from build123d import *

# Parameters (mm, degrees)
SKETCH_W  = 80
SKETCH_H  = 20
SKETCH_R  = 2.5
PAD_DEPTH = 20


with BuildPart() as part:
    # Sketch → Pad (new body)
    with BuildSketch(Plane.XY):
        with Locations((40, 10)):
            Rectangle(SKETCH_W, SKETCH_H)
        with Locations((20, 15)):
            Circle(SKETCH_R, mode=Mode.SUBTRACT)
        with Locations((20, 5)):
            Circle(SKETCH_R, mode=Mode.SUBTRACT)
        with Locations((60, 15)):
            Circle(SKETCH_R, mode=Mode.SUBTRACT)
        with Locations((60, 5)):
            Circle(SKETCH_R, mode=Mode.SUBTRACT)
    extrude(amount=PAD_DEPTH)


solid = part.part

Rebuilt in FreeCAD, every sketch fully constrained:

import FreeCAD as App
import Part
import Sketcher

V = App.Vector


def add_polygon(sketch, points):
    """Adds a closed chain of lines whose ends are joined by coincident constraints."""
    first, n = sketch.GeometryCount, len(points)
    for a, b in zip(points, points[1:] + points[:1]):
        sketch.addGeometry(Part.LineSegment(App.Vector(*a, 0), App.Vector(*b, 0)), False)
    for i in range(n):
        sketch.addConstraint(Sketcher.Constraint("Coincident", first + i, 2, first + (i + 1) % n, 1))

doc = App.newDocument("Part")
params = doc.addObject("Spreadsheet::Sheet", "Params")
for row, (alias, value) in enumerate([
    ("sketch1_diameter", "5 mm"),
    ("sketch1_width", "80 mm"),
    ("sketch1_height", "20 mm"),
    ("pad1_length", "20 mm"),
], start=1):
    params.set(f"A{row}", alias)
    params.set(f"B{row}", "=" + value)
    params.setAlias(f"B{row}", alias)

body = doc.addObject("PartDesign::Body", "Body")

# Sketch on XY plane
sketch1 = doc.addObject("Sketcher::SketchObject", "Sketch")
body.addObject(sketch1)
sketch1.AttachmentSupport = (doc.XY_Plane, [""])
sketch1.MapMode = "FlatFace"
add_polygon(sketch1, [(0, 20), (0, 0), (80, 0), (80, 20)])  # lines 0-3
sketch1.addGeometry(Part.Circle(V(20, 5, 0), V(0, 0, 1), 2.5), False)  # 4
sketch1.addGeometry(Part.Circle(V(60, 5, 0), V(0, 0, 1), 2.5), False)  # 5
sketch1.addGeometry(Part.Circle(V(20, 15, 0), V(0, 0, 1), 2.5), False)  # 6
sketch1.addGeometry(Part.Circle(V(60, 15, 0), V(0, 0, 1), 2.5), False)  # 7
sketch1.addConstraint(Sketcher.Constraint("Vertical", 0))
sketch1.addConstraint(Sketcher.Constraint("Horizontal", 1))
sketch1.addConstraint(Sketcher.Constraint("Vertical", 2))
sketch1.addConstraint(Sketcher.Constraint("Horizontal", 3))
sketch1.addConstraint(Sketcher.Constraint("Coincident", 0, 2, -1, 1))
sketch1.addConstraint(Sketcher.Constraint("Equal", 4, 5))
sketch1.addConstraint(Sketcher.Constraint("Equal", 5, 6))
sketch1.addConstraint(Sketcher.Constraint("Equal", 6, 7))
sketch1.addConstraint(Sketcher.Constraint("Horizontal", 4, 3, 5, 3))
sketch1.addConstraint(Sketcher.Constraint("Horizontal", 6, 3, 7, 3))
sketch1.addConstraint(Sketcher.Constraint("Vertical", 4, 3, 6, 3))
sketch1.addConstraint(Sketcher.Constraint("Vertical", 5, 3, 7, 3))
sketch1.addConstraint(Sketcher.Constraint("Diameter", 4, 5.0))
sketch1.addConstraint(Sketcher.Constraint("DistanceX", 1, 1, 1, 2, 80.0))
sketch1.addConstraint(Sketcher.Constraint("DistanceY", 0, 2, 0, 1, 20.0))
sketch1.addConstraint(Sketcher.Constraint("DistanceX", -1, 1, 4, 3, 20.0))
sketch1.addConstraint(Sketcher.Constraint("DistanceY", -1, 1, 4, 3, 5.0))
sketch1.addConstraint(Sketcher.Constraint("DistanceX", -1, 1, 5, 3, 60.0))
sketch1.addConstraint(Sketcher.Constraint("DistanceY", -1, 1, 6, 3, 15.0))
sketch1.setExpression("Constraints[16]", "Params.sketch1_diameter")
sketch1.setExpression("Constraints[17]", "Params.sketch1_width")
sketch1.setExpression("Constraints[18]", "Params.sketch1_height")
pad1 = doc.addObject("PartDesign::Pad", "Pad")
body.addObject(pad1)
pad1.Profile = sketch1
pad1.setExpression("Length", "Params.pad1_length")

doc.recompute()
